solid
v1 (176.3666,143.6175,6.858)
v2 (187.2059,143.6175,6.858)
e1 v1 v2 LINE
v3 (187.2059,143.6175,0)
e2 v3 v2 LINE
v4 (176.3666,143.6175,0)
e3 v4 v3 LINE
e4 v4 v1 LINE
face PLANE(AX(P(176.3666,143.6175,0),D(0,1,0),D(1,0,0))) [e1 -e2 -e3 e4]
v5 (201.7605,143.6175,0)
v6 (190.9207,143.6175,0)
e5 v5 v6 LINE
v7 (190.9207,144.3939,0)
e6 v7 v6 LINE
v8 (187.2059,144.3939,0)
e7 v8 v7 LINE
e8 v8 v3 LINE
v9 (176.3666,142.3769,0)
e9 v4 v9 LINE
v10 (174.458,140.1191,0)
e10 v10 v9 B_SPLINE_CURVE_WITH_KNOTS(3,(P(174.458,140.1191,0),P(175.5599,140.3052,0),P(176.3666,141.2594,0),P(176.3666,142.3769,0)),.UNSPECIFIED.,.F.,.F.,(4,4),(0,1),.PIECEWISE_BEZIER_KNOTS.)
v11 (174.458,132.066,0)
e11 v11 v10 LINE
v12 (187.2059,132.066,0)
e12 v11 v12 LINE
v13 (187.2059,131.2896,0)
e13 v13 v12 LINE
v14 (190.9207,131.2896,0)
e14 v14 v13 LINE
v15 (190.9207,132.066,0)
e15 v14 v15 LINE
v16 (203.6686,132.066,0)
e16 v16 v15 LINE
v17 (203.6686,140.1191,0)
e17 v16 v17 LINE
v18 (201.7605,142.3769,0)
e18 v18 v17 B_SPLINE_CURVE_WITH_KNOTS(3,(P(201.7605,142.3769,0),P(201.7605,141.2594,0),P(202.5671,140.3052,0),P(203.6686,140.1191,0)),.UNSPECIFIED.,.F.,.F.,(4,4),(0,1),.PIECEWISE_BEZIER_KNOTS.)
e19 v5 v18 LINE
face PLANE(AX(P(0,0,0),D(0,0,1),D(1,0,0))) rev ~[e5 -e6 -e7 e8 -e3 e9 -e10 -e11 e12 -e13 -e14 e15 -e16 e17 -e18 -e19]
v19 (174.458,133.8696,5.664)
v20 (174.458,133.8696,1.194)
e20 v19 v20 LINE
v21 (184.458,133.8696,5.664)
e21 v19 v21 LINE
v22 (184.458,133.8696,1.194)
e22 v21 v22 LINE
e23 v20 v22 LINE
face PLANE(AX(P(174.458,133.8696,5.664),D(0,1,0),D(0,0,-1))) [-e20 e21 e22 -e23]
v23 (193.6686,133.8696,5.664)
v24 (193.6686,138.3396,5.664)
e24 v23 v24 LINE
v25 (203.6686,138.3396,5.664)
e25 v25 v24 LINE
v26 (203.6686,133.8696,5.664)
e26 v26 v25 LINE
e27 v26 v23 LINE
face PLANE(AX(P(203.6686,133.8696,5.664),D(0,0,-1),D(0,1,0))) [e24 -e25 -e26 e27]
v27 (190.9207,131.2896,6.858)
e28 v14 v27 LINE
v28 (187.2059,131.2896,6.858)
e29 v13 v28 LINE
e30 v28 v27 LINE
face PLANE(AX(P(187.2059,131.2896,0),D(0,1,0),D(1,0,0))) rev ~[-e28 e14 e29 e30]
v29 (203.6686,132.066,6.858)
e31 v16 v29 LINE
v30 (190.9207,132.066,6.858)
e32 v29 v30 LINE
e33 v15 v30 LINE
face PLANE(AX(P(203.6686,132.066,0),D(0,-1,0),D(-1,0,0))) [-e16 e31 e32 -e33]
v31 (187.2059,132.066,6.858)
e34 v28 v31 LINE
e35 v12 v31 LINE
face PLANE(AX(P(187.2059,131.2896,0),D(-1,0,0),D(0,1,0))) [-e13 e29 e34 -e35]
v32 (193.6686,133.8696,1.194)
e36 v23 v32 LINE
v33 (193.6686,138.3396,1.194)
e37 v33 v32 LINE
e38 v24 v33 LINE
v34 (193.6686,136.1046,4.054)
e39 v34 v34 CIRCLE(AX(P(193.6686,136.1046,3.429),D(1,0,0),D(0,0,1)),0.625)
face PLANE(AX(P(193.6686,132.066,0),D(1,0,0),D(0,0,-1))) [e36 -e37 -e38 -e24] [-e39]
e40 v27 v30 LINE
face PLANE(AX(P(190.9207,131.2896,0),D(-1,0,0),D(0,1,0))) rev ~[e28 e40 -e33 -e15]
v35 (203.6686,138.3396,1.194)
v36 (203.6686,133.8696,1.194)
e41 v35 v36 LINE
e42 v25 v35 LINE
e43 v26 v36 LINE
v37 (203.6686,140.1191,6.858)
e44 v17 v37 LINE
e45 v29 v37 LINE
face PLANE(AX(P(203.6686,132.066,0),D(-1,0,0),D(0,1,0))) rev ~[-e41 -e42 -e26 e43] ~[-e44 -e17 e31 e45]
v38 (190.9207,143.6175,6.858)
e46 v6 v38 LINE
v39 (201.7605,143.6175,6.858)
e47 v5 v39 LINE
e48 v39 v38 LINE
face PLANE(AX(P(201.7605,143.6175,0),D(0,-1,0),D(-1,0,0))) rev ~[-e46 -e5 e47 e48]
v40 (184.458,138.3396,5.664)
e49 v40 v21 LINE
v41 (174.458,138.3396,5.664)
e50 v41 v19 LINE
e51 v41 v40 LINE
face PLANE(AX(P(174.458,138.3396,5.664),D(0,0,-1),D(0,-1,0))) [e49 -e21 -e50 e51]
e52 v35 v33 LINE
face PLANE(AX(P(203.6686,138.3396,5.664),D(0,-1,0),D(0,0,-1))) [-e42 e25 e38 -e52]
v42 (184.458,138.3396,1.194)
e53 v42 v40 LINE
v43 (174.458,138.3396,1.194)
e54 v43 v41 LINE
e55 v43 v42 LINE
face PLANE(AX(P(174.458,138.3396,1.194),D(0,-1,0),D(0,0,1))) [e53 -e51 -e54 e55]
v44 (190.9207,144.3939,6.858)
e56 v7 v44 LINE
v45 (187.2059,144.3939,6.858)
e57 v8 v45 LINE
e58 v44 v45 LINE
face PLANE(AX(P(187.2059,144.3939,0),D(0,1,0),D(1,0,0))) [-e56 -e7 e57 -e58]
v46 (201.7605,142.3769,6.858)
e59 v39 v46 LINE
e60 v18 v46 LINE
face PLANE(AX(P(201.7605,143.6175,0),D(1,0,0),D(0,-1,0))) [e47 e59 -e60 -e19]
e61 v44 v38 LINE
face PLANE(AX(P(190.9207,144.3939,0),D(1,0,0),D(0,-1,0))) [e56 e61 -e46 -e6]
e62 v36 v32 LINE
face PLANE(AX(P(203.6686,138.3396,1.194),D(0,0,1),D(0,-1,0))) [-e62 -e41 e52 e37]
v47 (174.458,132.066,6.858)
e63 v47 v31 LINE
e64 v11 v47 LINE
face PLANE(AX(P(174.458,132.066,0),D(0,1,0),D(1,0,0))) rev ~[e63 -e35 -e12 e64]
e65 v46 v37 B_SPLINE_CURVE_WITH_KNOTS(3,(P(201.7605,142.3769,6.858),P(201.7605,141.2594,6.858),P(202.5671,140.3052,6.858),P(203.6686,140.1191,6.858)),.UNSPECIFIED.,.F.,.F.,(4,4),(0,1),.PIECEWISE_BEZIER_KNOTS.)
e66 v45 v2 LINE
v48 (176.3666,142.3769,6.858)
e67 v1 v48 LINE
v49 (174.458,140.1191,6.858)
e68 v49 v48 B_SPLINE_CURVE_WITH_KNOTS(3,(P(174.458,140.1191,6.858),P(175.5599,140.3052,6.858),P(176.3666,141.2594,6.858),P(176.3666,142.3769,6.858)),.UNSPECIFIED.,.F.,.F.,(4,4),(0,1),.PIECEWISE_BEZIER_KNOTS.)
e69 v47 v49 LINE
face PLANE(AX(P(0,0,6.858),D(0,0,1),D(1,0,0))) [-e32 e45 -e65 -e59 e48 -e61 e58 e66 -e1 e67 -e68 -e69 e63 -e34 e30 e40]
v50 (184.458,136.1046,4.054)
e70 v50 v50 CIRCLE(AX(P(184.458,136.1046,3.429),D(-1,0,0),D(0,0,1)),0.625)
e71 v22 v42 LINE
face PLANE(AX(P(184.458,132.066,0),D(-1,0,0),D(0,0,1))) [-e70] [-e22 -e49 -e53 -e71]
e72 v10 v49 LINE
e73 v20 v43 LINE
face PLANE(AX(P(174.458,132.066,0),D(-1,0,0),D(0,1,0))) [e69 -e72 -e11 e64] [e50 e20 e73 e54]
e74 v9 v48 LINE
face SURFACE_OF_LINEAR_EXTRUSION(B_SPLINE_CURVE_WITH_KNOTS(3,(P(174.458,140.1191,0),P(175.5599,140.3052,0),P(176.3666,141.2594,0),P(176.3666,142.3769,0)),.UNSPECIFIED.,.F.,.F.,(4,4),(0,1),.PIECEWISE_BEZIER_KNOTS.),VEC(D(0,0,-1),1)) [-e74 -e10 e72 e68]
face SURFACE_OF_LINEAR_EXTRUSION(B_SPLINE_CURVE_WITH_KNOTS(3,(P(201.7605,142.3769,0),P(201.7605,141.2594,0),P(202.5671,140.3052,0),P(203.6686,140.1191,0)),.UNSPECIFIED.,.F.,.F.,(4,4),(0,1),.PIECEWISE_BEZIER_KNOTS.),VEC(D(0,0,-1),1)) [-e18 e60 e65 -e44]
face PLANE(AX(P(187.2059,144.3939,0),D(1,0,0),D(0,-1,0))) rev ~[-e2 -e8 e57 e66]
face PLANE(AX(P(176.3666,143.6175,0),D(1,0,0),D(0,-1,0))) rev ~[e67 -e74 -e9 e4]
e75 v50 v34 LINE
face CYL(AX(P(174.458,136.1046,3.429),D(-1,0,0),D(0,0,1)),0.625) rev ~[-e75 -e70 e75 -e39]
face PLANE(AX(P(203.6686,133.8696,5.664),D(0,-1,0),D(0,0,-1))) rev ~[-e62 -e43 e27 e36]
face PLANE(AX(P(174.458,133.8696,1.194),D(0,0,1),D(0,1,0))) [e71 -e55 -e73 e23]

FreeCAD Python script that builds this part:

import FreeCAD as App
import Part
import Sketcher
from FreeCAD import Vector
Q = App.Units.Quantity


def add_polygon(sketch, points):
    """Adds a closed chain of lines whose ends are joined by coincident constraints."""
    first, n = sketch.GeometryCount, len(points)
    for a, b in zip(points, points[1:] + points[:1]):
        sketch.addGeometry(Part.LineSegment(App.Vector(*a, 0), App.Vector(*b, 0)), False)
    for i in range(n):
        sketch.addConstraint(Sketcher.Constraint("Coincident", first + i, 2, first + (i + 1) % n, 1))

doc = App.newDocument("Part")
body = doc.addObject("PartDesign::Body", "Body")

# Sketch on XY plane
sketch1 = body.newObject("Sketcher::SketchObject", "Sketch")
sketch1.AttachmentSupport = (doc.getObject("XY_Plane"), [""])
sketch1.MapMode = "FlatFace"
sketch1.addGeometry([
    Part.BSplineCurve([Vector(174.458, 140.1191, 0), Vector(175.5599, 140.3052, 0), Vector(176.3666, 141.2594, 0), Vector(176.3666, 142.3769, 0)], [4, 4], [0, 1], False, 3, [1, 1, 1, 1], False),  # 0
    Part.LineSegment(Vector(174.458, 140.1191, 0), Vector(174.458, 132.066, 0)),  # 1
    Part.LineSegment(Vector(174.458, 132.066, 0), Vector(187.2059, 132.066, 0)),  # 2
    Part.LineSegment(Vector(187.2059, 132.066, 0), Vector(187.2059, 131.2896, 0)),  # 3
    Part.LineSegment(Vector(187.2059, 131.2896, 0), Vector(190.9207, 131.2896, 0)),  # 4
    Part.LineSegment(Vector(190.9207, 131.2896, 0), Vector(190.9207, 132.066, 0)),  # 5
    Part.LineSegment(Vector(190.9207, 132.066, 0), Vector(203.6686, 132.066, 0)),  # 6
    Part.LineSegment(Vector(203.6686, 132.066, 0), Vector(203.6686, 140.1191, 0)),  # 7
    Part.BSplineCurve([Vector(201.7605, 142.3769, 0), Vector(201.7605, 141.2594, 0), Vector(202.5671, 140.3052, 0), Vector(203.6686, 140.1191, 0)], [4, 4], [0, 1], False, 3, [1, 1, 1, 1], False),  # 8
    Part.LineSegment(Vector(201.7605, 142.3769, 0), Vector(201.7605, 143.6175, 0)),  # 9
    Part.LineSegment(Vector(201.7605, 143.6175, 0), Vector(190.9207, 143.6175, 0)),  # 10
    Part.LineSegment(Vector(190.9207, 143.6175, 0), Vector(190.9207, 144.3939, 0)),  # 11
    Part.LineSegment(Vector(190.9207, 144.3939, 0), Vector(187.2059, 144.3939, 0)),  # 12
    Part.LineSegment(Vector(187.2059, 144.3939, 0), Vector(187.2059, 143.6175, 0)),  # 13
    Part.LineSegment(Vector(187.2059, 143.6175, 0), Vector(176.3666, 143.6175, 0)),  # 14
    Part.LineSegment(Vector(176.3666, 143.6175, 0), Vector(176.3666, 142.3769, 0)),  # 15
], False)
sketch1.addConstraint([
    Sketcher.Constraint("Block", 0),
    Sketcher.Constraint("Block", 8),
    Sketcher.Constraint("Coincident", 0, 1, 1, 1),
    Sketcher.Constraint("Coincident", 1, 2, 2, 1),
    Sketcher.Constraint("Coincident", 2, 2, 3, 1),
    Sketcher.Constraint("Coincident", 3, 2, 4, 1),
    Sketcher.Constraint("Coincident", 4, 2, 5, 1),
    Sketcher.Constraint("Coincident", 5, 2, 6, 1),
    Sketcher.Constraint("Coincident", 6, 2, 7, 1),
    Sketcher.Constraint("Coincident", 7, 2, 8, 2),
    Sketcher.Constraint("Coincident", 8, 1, 9, 1),
    Sketcher.Constraint("Coincident", 9, 2, 10, 1),
    Sketcher.Constraint("Coincident", 10, 2, 11, 1),
    Sketcher.Constraint("Coincident", 11, 2, 12, 1),
    Sketcher.Constraint("Coincident", 12, 2, 13, 1),
    Sketcher.Constraint("Coincident", 13, 2, 14, 1),
    Sketcher.Constraint("Coincident", 14, 2, 15, 1),
    Sketcher.Constraint("Coincident", 15, 2, 0, 2),
    Sketcher.Constraint("Vertical", 1),
    Sketcher.Constraint("Horizontal", 2),
    Sketcher.Constraint("Vertical", 3),
    Sketcher.Constraint("Horizontal", 4),
    Sketcher.Constraint("Vertical", 5),
    Sketcher.Constraint("Horizontal", 6),
    Sketcher.Constraint("Vertical", 7),
    Sketcher.Constraint("Vertical", 9),
    Sketcher.Constraint("Horizontal", 10),
    Sketcher.Constraint("Vertical", 11),
    Sketcher.Constraint("Horizontal", 12),
    Sketcher.Constraint("Vertical", 13),
    Sketcher.Constraint("Horizontal", 14),
    Sketcher.Constraint("Vertical", 15),
    Sketcher.Constraint("DistanceX", 14, 2, 10, 2, Q("0.573 in")),
    Sketcher.Constraint("DistanceX", 2, 1, 2, 2, Q("0.5018898 in")),
    Sketcher.Constraint("DistanceX", 4, 1, 4, 2, 3.7148),
    Sketcher.Constraint("DistanceX", 12, 2, 12, 1, 3.7148),
    Sketcher.Constraint("DistanceY", 1, 2, 1, 1, 8.053),
    Sketcher.Constraint("DistanceY", 3, 2, 3, 1, 0.7764),
    Sketcher.Constraint("DistanceY", 5, 1, 5, 2, 0.7764),
    Sketcher.Constraint("DistanceY", 9, 1, 9, 2, 1.2406),
    Sketcher.Constraint("DistanceY", 11, 1, 11, 2, 0.7764),
    Sketcher.Constraint("DistanceY", 13, 2, 13, 1, 0.7764),
])
pad1 = body.newObject("PartDesign::Pad", "Pad")
pad1.Profile = sketch1
pad1.Length = Q("0.27 in")

# Sketch on YZ plane
sketch2 = body.newObject("Sketcher::SketchObject", "Sketch001")
sketch2.AttachmentSupport = (doc.getObject("YZ_Plane"), [""])
sketch2.MapMode = "FlatFace"
sketch2.AttachmentOffset = App.Placement(Vector(0, 0, 174.458), App.Rotation())
sketch2.addGeometry(Part.Circle(Vector(136.1, 3.4, 0), Vector(0, 0, 1), 0.6), False)
sketch2.addConstraint([
    Sketcher.Constraint("Diameter", 0, 1.25),
    Sketcher.Constraint("DistanceY", -1, 1, 0, 3, Q("0.135 in")),
    Sketcher.Constraint("DistanceX", -1, 1, 0, 3, 136.1046),
])
pocket1 = body.newObject("PartDesign::Pocket", "Pocket")
pocket1.Profile = sketch2
pocket1.Type = "ThroughAll"
pocket1.Reversed = True

# Sketch on YZ plane
sketch3 = body.newObject("Sketcher::SketchObject", "Sketch002")
sketch3.AttachmentSupport = (doc.getObject("YZ_Plane"), [""])
sketch3.MapMode = "FlatFace"
sketch3.AttachmentOffset = App.Placement(Vector(0, 0, 174.458), App.Rotation())
add_polygon(sketch3, [(138.3, 5.7), (138.3, 1.2), (133.9, 1.2), (133.9, 5.7)])  # lines 0-3
sketch3.addGeometry(Part.Circle(Vector(136.1, 3.4, 0), Vector(0, 0, 1), 0.6), False)  # 4
sketch3.addConstraint([
    Sketcher.Constraint("Vertical", 0),
    Sketcher.Constraint("Horizontal", 1),
    Sketcher.Constraint("Vertical", 2),
    Sketcher.Constraint("Horizontal", 3),
    Sketcher.Constraint("Equal", 3, 0),
    Sketcher.Constraint("DistanceX", 1, 2, 1, 1, 4.47),
    Sketcher.Constraint("Diameter", 4, 1.25),
    Sketcher.Constraint("DistanceY", -1, 1, 4, 3, Q("0.135 in")),
    Sketcher.Constraint("DistanceY", -1, 1, 0, 2, Q("0.047 in")),
    Sketcher.Constraint("DistanceX", 4, 3, 0, 2, Q("0.088 in")),
    Sketcher.Constraint("DistanceX", -1, 1, 4, 3, 136.1046),
])
pocket2 = body.newObject("PartDesign::Pocket", "Pocket001")
pocket2.Profile = sketch3
pocket2.Length = Q("0.3937008 in")
pocket2.Reversed = True

# Sketch on YZ plane
sketch4 = body.newObject("Sketcher::SketchObject", "Sketch003")
sketch4.AttachmentSupport = (doc.getObject("YZ_Plane"), [""])
sketch4.MapMode = "FlatFace"
sketch4.AttachmentOffset = App.Placement(Vector(0, 0, 203.6686), App.Rotation())
add_polygon(sketch4, [(138.3, 5.7), (133.9, 5.7), (133.9, 1.2), (138.3, 1.2)])  # lines 0-3
sketch4.addGeometry(Part.Circle(Vector(136.1, 3.4, 0), Vector(0, 0, 1), 0.6), False)  # 4
sketch4.addConstraint([
    Sketcher.Constraint("Horizontal", 0),
    Sketcher.Constraint("Vertical", 1),
    Sketcher.Constraint("Horizontal", 2),
    Sketcher.Constraint("Vertical", 3),
    Sketcher.Constraint("Equal", 2, 1),
    Sketcher.Constraint("Diameter", 4, 1.25),
    Sketcher.Constraint("DistanceY", -1, 1, 4, 3, Q("0.135 in")),
    Sketcher.Constraint("DistanceY", -1, 1, 0, 2, Q("0.223 in")),
    Sketcher.Constraint("DistanceY", -1, 1, 1, 2, Q("0.047 in")),
    Sketcher.Constraint("DistanceX", 0, 2, 4, 3, Q("0.088 in")),
    Sketcher.Constraint("DistanceX", -1, 1, 4, 3, 136.1046),
])
pocket3 = body.newObject("PartDesign::Pocket", "Pocket002")
pocket3.Profile = sketch4
pocket3.Length = Q("0.3937008 in")

doc.recompute()
